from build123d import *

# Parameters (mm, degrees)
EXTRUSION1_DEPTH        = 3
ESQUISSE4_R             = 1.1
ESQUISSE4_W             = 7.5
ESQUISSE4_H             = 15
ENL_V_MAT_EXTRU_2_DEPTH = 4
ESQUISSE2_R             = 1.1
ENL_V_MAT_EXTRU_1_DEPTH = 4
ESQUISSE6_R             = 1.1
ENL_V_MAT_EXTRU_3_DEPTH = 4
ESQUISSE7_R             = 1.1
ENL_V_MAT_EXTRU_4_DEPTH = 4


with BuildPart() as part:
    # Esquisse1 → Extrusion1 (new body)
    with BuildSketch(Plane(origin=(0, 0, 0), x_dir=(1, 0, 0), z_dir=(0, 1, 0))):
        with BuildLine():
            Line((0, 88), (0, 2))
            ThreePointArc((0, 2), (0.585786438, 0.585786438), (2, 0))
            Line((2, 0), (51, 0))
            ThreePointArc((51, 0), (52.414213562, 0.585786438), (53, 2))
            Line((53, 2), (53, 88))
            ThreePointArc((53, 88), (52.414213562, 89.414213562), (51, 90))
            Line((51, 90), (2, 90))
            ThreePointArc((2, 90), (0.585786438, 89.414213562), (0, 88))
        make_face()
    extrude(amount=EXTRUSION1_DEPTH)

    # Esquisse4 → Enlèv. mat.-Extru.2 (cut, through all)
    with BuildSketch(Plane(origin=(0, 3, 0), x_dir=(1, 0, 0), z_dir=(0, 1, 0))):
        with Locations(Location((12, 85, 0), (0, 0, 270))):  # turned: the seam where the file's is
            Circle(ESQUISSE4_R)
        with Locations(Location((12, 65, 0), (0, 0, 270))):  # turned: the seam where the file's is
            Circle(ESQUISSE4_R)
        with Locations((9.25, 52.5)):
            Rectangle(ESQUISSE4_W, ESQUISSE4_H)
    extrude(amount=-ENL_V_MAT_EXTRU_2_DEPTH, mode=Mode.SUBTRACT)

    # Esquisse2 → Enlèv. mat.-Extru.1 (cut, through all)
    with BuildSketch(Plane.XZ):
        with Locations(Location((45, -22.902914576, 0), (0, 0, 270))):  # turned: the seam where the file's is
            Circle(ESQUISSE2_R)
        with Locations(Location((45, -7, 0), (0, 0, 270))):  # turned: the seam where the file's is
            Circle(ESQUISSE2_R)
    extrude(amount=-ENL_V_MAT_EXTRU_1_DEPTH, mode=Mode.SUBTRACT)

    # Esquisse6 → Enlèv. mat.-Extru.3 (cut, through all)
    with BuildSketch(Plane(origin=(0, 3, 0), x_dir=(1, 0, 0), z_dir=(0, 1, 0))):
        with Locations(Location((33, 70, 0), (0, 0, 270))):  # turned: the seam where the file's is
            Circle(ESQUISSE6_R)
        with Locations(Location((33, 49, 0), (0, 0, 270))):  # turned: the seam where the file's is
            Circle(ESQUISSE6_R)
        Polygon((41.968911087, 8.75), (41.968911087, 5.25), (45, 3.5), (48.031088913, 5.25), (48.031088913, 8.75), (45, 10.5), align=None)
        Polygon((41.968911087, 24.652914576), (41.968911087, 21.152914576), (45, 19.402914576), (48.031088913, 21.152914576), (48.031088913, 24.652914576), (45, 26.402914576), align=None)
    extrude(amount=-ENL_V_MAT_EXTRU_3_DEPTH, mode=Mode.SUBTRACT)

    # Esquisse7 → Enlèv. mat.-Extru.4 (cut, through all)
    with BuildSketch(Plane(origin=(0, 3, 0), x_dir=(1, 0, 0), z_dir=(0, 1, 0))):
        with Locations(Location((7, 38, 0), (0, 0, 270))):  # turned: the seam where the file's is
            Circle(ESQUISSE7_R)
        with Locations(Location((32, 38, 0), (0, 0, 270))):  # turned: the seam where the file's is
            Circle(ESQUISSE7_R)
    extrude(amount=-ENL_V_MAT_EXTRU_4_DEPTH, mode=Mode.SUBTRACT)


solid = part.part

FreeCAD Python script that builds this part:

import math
import FreeCAD as App
import Part
import Sketcher

V = App.Vector
Q = App.Units.Quantity


def add_polygon(sketch, points):
    """Adds a closed chain of lines whose ends are joined by coincident constraints."""
    first, n = sketch.GeometryCount, len(points)
    for a, b in zip(points, points[1:] + points[:1]):
        sketch.addGeometry(Part.LineSegment(App.Vector(*a, 0), App.Vector(*b, 0)), False)
    for i in range(n):
        sketch.addConstraint(Sketcher.Constraint("Coincident", first + i, 2, first + (i + 1) % n, 1))

doc = App.newDocument("Part")
body = doc.addObject("PartDesign::Body", "Body")

sketch1 = body.newObject("Sketcher::SketchObject", "Sketch")
sketch1.AttachmentSupport = (doc.getObject("XZ_Plane"), [""])
sketch1.MapMode = "FlatFace"
sketch1.addGeometry(Part.LineSegment(V(0, -88, 0), V(0, -2, 0)), False)
sketch1.addGeometry(Part.ArcOfCircle(Part.Circle(V(2, -2, 0), V(0, 0, 1), 2), math.radians(90), math.radians(180)), False)
sketch1.addGeometry(Part.LineSegment(V(2, 0, 0), V(51, 0, 0)), False)
sketch1.addGeometry(Part.ArcOfCircle(Part.Circle(V(51, -2, 0), V(0, 0, 1), 2), math.radians(0), math.radians(90)), False)
sketch1.addGeometry(Part.LineSegment(V(53, -2, 0), V(53, -88, 0)), False)
sketch1.addGeometry(Part.ArcOfCircle(Part.Circle(V(51, -88, 0), V(0, 0, 1), 2), math.radians(-90), math.radians(0)), False)
sketch1.addGeometry(Part.LineSegment(V(51, -90, 0), V(2, -90, 0)), False)
sketch1.addGeometry(Part.ArcOfCircle(Part.Circle(V(2, -88, 0), V(0, 0, 1), 2), math.radians(-180), math.radians(-90)), False)
sketch1.addConstraint(Sketcher.Constraint("Tangent", 0, 2, 1, 2))
sketch1.addConstraint(Sketcher.Constraint("Tangent", 1, 1, 2, 1))
sketch1.addConstraint(Sketcher.Constraint("Tangent", 2, 2, 3, 2))
sketch1.addConstraint(Sketcher.Constraint("Tangent", 3, 1, 4, 1))
sketch1.addConstraint(Sketcher.Constraint("Tangent", 4, 2, 5, 2))
sketch1.addConstraint(Sketcher.Constraint("Tangent", 5, 1, 6, 1))
sketch1.addConstraint(Sketcher.Constraint("Tangent", 6, 2, 7, 2))
sketch1.addConstraint(Sketcher.Constraint("Tangent", 7, 1, 0, 1))
sketch1.addConstraint(Sketcher.Constraint("Vertical", 0))
sketch1.addConstraint(Sketcher.Constraint("Horizontal", 2))
sketch1.addConstraint(Sketcher.Constraint("Vertical", 4))
sketch1.addConstraint(Sketcher.Constraint("Horizontal", 6))
sketch1.addConstraint(Sketcher.Constraint("Equal", 1, 3))
sketch1.addConstraint(Sketcher.Constraint("Equal", 3, 5))
sketch1.addConstraint(Sketcher.Constraint("Equal", 5, 7))
sketch1.addConstraint(Sketcher.Constraint("PointOnObject", 0, 2, -2))
sketch1.addConstraint(Sketcher.Constraint("PointOnObject", 1, 1, -1))
sketch1.addConstraint(Sketcher.Constraint("Radius", 1, 2.0))
sketch1.addConstraint(Sketcher.Constraint("DistanceX", 2, 1, 2, 2, 49.0))
sketch1.addConstraint(Sketcher.Constraint("DistanceY", 0, 1, 0, 2, 86.0))
pad1 = body.newObject("PartDesign::Pad", "Pad")
pad1.Profile = sketch1
pad1.Length = 3
pad1.Reversed = True

sketch2 = body.newObject("Sketcher::SketchObject", "Sketch001")
sketch2.AttachmentSupport = (doc.getObject("XZ_Plane"), [""])
sketch2.MapMode = "FlatFace"
sketch2.AttachmentOffset = App.Placement(V(0, 0, -3), App.Rotation())
sketch2.addGeometry(Part.Circle(V(12, -85, 0), V(0, 0, 1), 1.1), False)
sketch2.addGeometry(Part.Circle(V(12, -65, 0), V(0, 0, 1), 1.1), False)
add_polygon(sketch2, [(5.5, -60), (5.5, -45), (13, -45), (13, -60)])
sketch2.addConstraint(Sketcher.Constraint("Vertical", 2))
sketch2.addConstraint(Sketcher.Constraint("Horizontal", 3))
sketch2.addConstraint(Sketcher.Constraint("Vertical", 4))
sketch2.addConstraint(Sketcher.Constraint("Horizontal", 5))
sketch2.addConstraint(Sketcher.Constraint("Equal", 0, 1))
sketch2.addConstraint(Sketcher.Constraint("Vertical", 0, 3, 1, 3))
sketch2.addConstraint(Sketcher.Constraint("Diameter", 0, 2.2))
sketch2.addConstraint(Sketcher.Constraint("DistanceY", 2, 1, 2, 2, 15.0))
sketch2.addConstraint(Sketcher.Constraint("DistanceX", 3, 1, 3, 2, 7.5))
sketch2.addConstraint(Sketcher.Constraint("DistanceX", -1, 1, 0, 3, 12.0))
sketch2.addConstraint(Sketcher.Constraint("DistanceY", 0, 3, -1, 1, 85.0))
sketch2.addConstraint(Sketcher.Constraint("DistanceY", 1, 3, -1, 1, 65.0))
sketch2.addConstraint(Sketcher.Constraint("DistanceY", 2, 2, -1, 1, 45.0))
sketch2.addConstraint(Sketcher.Constraint("DistanceX", -1, 1, 3, 2, 13.0))
pocket1 = body.newObject("PartDesign::Pocket", "Pocket")
pocket1.Profile = sketch2
pocket1.Type = "ThroughAll"
pocket1.Reversed = True

sketch3 = body.newObject("Sketcher::SketchObject", "Sketch002")
sketch3.AttachmentSupport = (doc.getObject("XZ_Plane"), [""])
sketch3.MapMode = "FlatFace"
sketch3.addGeometry(Part.Circle(V(45, -22.9, 0), V(0, 0, 1), 1.1), False)
sketch3.addGeometry(Part.Circle(V(45, -7, 0), V(0, 0, 1), 1.1), False)
sketch3.addConstraint(Sketcher.Constraint("Equal", 0, 1))
sketch3.addConstraint(Sketcher.Constraint("Vertical", 0, 3, 1, 3))
sketch3.addConstraint(Sketcher.Constraint("Diameter", 0, 2.2))
sketch3.addConstraint(Sketcher.Constraint("DistanceX", -1, 1, 0, 3, 45.0))
sketch3.addConstraint(Sketcher.Constraint("DistanceY", 1, 3, -1, 1, 7.0))
sketch3.addConstraint(Sketcher.Constraint("DistanceY", 0, 3, -1, 1, 22.902915))
pocket2 = body.newObject("PartDesign::Pocket", "Pocket001")
pocket2.Profile = sketch3
pocket2.Type = "ThroughAll"

sketch4 = body.newObject("Sketcher::SketchObject", "Sketch003")
sketch4.AttachmentSupport = (doc.getObject("XZ_Plane"), [""])
sketch4.MapMode = "FlatFace"
sketch4.AttachmentOffset = App.Placement(V(0, 0, -3), App.Rotation())
sketch4.addGeometry(Part.Circle(V(33, -70, 0), V(0, 0, 1), 1.1), False)
sketch4.addGeometry(Part.Circle(V(33, -49, 0), V(0, 0, 1), 1.1), False)
add_polygon(sketch4, [(42, -8.8), (42, -5.2), (45, -3.5), (48, -5.2), (48, -8.8), (45, -10.5)])
add_polygon(sketch4, [(42, -24.7), (42, -21.2), (45, -19.4), (48, -21.2), (48, -24.7), (45, -26.4)])
sketch4.addConstraint(Sketcher.Constraint("Vertical", 2))
sketch4.addConstraint(Sketcher.Constraint("Vertical", 5))
sketch4.addConstraint(Sketcher.Constraint("Vertical", 8))
sketch4.addConstraint(Sketcher.Constraint("Vertical", 11))
sketch4.addConstraint(Sketcher.Constraint("Equal", 0, 1))
sketch4.addConstraint(Sketcher.Constraint("Parallel", 3, 6))
sketch4.addConstraint(Sketcher.Constraint("Parallel", 4, 7))
sketch4.addConstraint(Sketcher.Constraint("Parallel", 6, 9))
sketch4.addConstraint(Sketcher.Constraint("Parallel", 7, 10))
sketch4.addConstraint(Sketcher.Constraint("Parallel", 9, 12))
sketch4.addConstraint(Sketcher.Constraint("Parallel", 10, 13))
sketch4.addConstraint(Sketcher.Constraint("Horizontal", 2, 2, 4, 2))
sketch4.addConstraint(Sketcher.Constraint("Horizontal", 5, 2, 7, 2))
sketch4.addConstraint(Sketcher.Constraint("Horizontal", 8, 2, 10, 2))
sketch4.addConstraint(Sketcher.Constraint("Horizontal", 11, 2, 13, 2))
sketch4.addConstraint(Sketcher.Constraint("Vertical", 0, 3, 1, 3))
sketch4.addConstraint(Sketcher.Constraint("Vertical", 3, 2, 6, 2))
sketch4.addConstraint(Sketcher.Constraint("Vertical", 7, 2, 8, 2))
sketch4.addConstraint(Sketcher.Constraint("Vertical", 6, 2, 9, 2))
sketch4.addConstraint(Sketcher.Constraint("Equal", 5, 8))
sketch4.addConstraint(Sketcher.Constraint("Diameter", 0, 2.2))
sketch4.addConstraint(Sketcher.Constraint("Angle", 3, Q("30 deg")))
sketch4.addConstraint(Sketcher.Constraint("DistanceY", 2, 1, 2, 2, 3.5))
sketch4.addConstraint(Sketcher.Constraint("DistanceX", -1, 1, 0, 3, 33.0))
sketch4.addConstraint(Sketcher.Constraint("DistanceY", 0, 3, -1, 1, 70.0))
sketch4.addConstraint(Sketcher.Constraint("DistanceY", 1, 3, -1, 1, 49.0))
sketch4.addConstraint(Sketcher.Constraint("DistanceX", -1, 1, 3, 2, 45.0))
sketch4.addConstraint(Sketcher.Constraint("DistanceY", 6, 2, 3, 2, 7.0))
sketch4.addConstraint(Sketcher.Constraint("DistanceY", 3, 2, -1, 1, 3.5))
sketch4.addConstraint(Sketcher.Constraint("DistanceY", 8, 2, -1, 1, 21.152915))
pocket3 = body.newObject("PartDesign::Pocket", "Pocket002")
pocket3.Profile = sketch4
pocket3.Type = "ThroughAll"
pocket3.Reversed = True

sketch5 = body.newObject("Sketcher::SketchObject", "Sketch004")
sketch5.AttachmentSupport = (doc.getObject("XZ_Plane"), [""])
sketch5.MapMode = "FlatFace"
sketch5.AttachmentOffset = App.Placement(V(0, 0, -3), App.Rotation())
sketch5.addGeometry(Part.Circle(V(7, -38, 0), V(0, 0, 1), 1.1), False)
sketch5.addGeometry(Part.Circle(V(32, -38, 0), V(0, 0, 1), 1.1), False)
sketch5.addConstraint(Sketcher.Constraint("Equal", 0, 1))
sketch5.addConstraint(Sketcher.Constraint("Horizontal", 0, 3, 1, 3))
sketch5.addConstraint(Sketcher.Constraint("Diameter", 0, 2.2))
sketch5.addConstraint(Sketcher.Constraint("DistanceX", -1, 1, 0, 3, 7.0))
sketch5.addConstraint(Sketcher.Constraint("DistanceY", 0, 3, -1, 1, 38.0))
sketch5.addConstraint(Sketcher.Constraint("DistanceX", -1, 1, 1, 3, 32.0))
pocket4 = body.newObject("PartDesign::Pocket", "Pocket003")
pocket4.Profile = sketch5
pocket4.Type = "ThroughAll"
pocket4.Reversed = True

doc.recompute()
